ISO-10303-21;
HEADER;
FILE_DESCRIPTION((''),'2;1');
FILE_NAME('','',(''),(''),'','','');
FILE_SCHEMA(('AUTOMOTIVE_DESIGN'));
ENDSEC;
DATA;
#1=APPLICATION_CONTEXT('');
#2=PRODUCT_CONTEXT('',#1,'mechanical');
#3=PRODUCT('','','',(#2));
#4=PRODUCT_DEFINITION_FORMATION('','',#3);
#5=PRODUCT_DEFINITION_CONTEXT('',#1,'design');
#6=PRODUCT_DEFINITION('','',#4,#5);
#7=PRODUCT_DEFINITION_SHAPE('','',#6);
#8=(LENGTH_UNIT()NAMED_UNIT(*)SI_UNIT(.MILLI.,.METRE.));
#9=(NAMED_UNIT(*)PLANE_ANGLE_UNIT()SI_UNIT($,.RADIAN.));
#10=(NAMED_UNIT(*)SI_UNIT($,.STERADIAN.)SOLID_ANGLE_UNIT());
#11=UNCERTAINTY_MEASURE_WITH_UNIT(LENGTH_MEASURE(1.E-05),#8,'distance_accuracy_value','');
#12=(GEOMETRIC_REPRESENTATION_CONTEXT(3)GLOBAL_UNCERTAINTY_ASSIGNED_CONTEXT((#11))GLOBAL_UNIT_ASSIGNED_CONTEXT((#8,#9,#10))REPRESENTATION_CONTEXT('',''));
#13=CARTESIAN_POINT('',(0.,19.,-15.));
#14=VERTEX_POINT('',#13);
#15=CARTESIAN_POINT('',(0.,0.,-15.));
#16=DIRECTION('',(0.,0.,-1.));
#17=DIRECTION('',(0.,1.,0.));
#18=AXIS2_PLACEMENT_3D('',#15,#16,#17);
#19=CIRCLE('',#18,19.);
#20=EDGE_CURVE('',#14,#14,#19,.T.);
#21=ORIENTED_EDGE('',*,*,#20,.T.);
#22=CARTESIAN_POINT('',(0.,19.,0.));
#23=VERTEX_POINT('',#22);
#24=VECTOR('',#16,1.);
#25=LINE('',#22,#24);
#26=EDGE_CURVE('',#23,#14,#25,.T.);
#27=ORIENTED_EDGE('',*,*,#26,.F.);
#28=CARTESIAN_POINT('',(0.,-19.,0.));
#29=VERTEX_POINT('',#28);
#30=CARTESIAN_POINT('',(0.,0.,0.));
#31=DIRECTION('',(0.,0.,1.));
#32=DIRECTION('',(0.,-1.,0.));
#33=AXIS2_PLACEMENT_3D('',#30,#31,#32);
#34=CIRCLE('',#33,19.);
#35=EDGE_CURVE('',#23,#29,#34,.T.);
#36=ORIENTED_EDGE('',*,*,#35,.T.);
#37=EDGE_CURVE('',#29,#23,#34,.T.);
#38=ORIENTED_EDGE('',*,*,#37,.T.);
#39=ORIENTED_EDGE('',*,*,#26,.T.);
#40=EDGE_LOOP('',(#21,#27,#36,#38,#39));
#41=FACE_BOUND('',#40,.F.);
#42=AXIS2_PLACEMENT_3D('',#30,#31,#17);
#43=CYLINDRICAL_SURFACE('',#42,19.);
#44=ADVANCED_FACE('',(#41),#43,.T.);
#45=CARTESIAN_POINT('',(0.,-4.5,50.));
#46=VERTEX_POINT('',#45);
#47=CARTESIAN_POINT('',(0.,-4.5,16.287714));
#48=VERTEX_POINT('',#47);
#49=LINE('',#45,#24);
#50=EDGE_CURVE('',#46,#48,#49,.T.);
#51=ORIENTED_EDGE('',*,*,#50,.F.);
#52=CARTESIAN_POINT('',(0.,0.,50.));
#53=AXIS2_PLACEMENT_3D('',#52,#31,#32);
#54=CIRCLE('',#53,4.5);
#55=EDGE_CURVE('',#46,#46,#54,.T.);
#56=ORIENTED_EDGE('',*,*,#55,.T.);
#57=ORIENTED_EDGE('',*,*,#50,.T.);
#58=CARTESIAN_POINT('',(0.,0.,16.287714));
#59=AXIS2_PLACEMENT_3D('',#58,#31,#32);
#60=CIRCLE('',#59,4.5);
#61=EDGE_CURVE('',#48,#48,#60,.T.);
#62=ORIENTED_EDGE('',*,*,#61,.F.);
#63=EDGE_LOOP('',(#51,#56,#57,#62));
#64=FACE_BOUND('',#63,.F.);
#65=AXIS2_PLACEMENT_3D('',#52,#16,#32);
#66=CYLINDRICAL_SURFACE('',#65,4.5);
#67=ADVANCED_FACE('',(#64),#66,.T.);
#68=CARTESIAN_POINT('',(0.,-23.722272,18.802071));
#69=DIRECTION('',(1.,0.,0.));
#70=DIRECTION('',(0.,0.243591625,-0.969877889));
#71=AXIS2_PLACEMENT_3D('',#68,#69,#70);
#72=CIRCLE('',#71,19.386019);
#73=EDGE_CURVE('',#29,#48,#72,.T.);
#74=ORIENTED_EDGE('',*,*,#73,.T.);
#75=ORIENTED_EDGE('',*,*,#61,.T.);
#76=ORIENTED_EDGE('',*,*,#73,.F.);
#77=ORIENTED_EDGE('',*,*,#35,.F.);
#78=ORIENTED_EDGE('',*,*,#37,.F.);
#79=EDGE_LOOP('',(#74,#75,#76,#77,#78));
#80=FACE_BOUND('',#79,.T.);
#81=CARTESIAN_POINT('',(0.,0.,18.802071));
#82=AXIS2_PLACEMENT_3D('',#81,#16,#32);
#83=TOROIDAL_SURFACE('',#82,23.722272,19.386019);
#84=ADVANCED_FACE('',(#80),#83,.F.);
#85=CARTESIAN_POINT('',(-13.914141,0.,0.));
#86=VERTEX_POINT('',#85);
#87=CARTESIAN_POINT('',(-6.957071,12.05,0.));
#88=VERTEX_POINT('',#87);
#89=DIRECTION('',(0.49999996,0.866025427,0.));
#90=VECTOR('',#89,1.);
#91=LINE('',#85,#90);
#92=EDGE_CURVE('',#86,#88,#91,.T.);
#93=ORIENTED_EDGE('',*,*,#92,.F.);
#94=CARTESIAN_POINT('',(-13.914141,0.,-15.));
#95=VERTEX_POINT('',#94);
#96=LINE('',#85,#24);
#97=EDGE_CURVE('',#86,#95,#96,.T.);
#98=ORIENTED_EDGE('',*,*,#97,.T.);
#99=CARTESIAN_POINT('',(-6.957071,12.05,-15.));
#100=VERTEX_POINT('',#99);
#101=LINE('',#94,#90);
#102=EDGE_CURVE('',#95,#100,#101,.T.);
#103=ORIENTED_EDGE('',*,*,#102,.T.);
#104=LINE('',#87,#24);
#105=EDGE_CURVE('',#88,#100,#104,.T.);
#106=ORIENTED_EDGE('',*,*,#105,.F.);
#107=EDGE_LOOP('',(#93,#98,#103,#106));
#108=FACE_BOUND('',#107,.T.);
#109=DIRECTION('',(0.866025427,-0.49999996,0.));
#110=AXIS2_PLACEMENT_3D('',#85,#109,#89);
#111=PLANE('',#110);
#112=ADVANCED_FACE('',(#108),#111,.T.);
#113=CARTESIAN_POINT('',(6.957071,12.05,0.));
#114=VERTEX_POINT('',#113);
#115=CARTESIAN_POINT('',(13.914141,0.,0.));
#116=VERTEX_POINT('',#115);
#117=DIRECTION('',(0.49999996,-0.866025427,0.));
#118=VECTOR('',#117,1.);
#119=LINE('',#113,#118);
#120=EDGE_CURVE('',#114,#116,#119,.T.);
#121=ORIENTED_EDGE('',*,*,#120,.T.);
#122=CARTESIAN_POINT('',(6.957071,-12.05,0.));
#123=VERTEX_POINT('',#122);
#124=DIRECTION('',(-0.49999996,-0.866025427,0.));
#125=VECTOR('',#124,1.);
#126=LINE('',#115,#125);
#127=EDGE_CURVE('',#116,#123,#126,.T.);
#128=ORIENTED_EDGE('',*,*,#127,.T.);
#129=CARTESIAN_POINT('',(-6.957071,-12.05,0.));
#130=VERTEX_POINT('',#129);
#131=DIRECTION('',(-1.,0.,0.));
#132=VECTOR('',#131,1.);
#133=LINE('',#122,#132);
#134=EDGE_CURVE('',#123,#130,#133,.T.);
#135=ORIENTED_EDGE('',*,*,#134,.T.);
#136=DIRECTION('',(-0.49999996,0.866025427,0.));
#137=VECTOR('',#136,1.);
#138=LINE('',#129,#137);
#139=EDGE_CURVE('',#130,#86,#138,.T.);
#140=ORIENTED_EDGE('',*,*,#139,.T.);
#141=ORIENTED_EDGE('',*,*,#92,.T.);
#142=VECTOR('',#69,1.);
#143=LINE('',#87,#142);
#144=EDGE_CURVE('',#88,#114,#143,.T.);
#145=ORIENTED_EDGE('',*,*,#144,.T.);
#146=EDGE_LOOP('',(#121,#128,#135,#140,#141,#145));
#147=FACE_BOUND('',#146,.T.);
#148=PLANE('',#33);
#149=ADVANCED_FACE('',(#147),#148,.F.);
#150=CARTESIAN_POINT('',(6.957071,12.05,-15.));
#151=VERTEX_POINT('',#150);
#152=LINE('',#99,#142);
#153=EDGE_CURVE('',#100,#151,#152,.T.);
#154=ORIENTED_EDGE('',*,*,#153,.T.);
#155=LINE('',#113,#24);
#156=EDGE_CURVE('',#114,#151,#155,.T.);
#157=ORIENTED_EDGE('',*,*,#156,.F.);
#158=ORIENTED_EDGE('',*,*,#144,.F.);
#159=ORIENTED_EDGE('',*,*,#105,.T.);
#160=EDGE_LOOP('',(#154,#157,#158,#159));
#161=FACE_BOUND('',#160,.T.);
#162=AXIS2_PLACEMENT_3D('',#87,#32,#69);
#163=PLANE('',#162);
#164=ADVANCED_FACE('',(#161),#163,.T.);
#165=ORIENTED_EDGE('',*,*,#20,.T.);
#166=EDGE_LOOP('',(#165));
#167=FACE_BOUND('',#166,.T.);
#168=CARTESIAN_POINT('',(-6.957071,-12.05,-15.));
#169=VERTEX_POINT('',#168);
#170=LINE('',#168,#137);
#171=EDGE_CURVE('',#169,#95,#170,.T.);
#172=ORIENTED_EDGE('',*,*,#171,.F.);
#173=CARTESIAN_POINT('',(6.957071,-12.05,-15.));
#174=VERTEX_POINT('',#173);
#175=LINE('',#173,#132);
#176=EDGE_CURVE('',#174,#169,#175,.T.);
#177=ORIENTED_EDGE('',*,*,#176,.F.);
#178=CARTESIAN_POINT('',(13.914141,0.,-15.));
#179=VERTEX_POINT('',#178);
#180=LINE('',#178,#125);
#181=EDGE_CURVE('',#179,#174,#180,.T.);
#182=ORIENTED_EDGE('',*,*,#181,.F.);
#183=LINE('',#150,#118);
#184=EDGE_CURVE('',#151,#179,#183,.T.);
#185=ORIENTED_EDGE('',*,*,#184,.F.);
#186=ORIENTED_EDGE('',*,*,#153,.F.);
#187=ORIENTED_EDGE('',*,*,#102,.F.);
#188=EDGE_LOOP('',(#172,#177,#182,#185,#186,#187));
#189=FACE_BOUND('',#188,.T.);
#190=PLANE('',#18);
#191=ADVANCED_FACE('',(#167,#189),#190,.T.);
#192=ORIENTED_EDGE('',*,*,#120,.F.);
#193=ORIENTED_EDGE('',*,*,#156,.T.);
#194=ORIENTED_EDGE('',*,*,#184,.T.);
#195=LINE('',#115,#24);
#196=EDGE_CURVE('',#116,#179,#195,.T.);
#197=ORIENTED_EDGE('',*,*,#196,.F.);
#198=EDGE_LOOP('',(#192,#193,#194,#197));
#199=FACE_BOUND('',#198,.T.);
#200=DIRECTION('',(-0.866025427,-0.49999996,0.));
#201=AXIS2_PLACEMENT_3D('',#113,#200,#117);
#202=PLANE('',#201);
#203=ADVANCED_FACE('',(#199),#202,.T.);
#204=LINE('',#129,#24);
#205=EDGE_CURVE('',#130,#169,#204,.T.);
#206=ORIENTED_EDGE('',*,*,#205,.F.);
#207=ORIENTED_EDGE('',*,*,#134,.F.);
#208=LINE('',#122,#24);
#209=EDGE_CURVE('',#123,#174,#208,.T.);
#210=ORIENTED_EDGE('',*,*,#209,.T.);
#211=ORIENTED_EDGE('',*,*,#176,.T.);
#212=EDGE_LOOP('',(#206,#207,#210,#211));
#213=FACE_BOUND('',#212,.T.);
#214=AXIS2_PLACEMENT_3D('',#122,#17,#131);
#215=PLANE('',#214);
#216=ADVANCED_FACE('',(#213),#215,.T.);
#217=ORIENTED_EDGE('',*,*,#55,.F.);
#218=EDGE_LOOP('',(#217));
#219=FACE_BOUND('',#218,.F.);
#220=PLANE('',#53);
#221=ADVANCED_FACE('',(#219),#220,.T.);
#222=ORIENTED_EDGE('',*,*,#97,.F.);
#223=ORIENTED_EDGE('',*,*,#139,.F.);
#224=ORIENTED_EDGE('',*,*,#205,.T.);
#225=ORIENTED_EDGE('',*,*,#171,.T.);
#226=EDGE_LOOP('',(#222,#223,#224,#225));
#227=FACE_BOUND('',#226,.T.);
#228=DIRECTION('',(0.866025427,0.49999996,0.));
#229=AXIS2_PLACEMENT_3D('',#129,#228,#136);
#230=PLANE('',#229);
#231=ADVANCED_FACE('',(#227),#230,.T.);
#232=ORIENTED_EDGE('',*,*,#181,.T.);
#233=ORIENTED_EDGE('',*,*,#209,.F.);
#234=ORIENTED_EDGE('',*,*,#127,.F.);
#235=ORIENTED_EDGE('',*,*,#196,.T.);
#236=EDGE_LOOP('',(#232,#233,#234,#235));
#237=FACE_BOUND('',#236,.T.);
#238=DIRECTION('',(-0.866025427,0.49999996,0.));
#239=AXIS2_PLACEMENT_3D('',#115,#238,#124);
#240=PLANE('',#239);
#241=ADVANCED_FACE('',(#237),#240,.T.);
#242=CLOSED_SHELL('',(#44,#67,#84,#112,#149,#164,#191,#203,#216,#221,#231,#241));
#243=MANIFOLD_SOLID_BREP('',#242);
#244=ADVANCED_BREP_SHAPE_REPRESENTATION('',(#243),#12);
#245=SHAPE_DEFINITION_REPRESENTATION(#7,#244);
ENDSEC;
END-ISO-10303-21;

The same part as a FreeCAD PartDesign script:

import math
import FreeCAD as App
import Part
import Sketcher
Q = App.Units.Quantity


def add_polygon(sketch, points):
    """Adds a closed chain of lines whose ends are joined by coincident constraints."""
    first, n = sketch.GeometryCount, len(points)
    for a, b in zip(points, points[1:] + points[:1]):
        sketch.addGeometry(Part.LineSegment(App.Vector(*a, 0), App.Vector(*b, 0)), False)
    for i in range(n):
        sketch.addConstraint(Sketcher.Constraint("Coincident", first + i, 2, first + (i + 1) % n, 1))

doc = App.newDocument("Part")
params = doc.addObject("Spreadsheet::Sheet", "Params")
for row, (alias, value) in enumerate([
    ("sketch1_width", "19 mm"),
    ("sketch1_height", "50 mm"),
    ("sketch1_width2", "4.5 mm"),
    ("revolution_angle", "360 deg"),
    ("sketch2_diameter", "38 mm"),
    ("pad1_length", "15 mm"),
], start=1):
    params.set(f"A{row}", alias)
    params.set(f"B{row}", "=" + value)
    params.setAlias(f"B{row}", alias)

body = doc.addObject("PartDesign::Body", "Body")

sketch1 = body.newObject("Sketcher::SketchObject", "Sketch")
sketch1.AttachmentSupport = (doc.getObject("YZ_Plane"), [""])
sketch1.MapMode = "FlatFace"
sketch1.addGeometry([
    Part.LineSegment(App.Vector(0, 0, 0), App.Vector(0, 50, 0)),
    Part.LineSegment(App.Vector(0, 50, 0), App.Vector(-4.5, 50, 0)),
    Part.LineSegment(App.Vector(-4.5, 50, 0), App.Vector(-4.5, 16.3, 0)),
    Part.ArcOfCircle(Part.Circle(App.Vector(-23.7, 18.8, 0), App.Vector(0, 0, 1), 19.4), math.radians(-76), math.radians(-7)),
    Part.LineSegment(App.Vector(-19, 0, 0), App.Vector(0, 0, 0)),
], False)
sketch1.addConstraint([
    Sketcher.Constraint("Coincident", 0, 2, 1, 1),
    Sketcher.Constraint("Coincident", 1, 2, 2, 1),
    Sketcher.Constraint("Coincident", 2, 2, 3, 2),
    Sketcher.Constraint("Coincident", 3, 1, 4, 1),
    Sketcher.Constraint("Coincident", 4, 2, 0, 1),
    Sketcher.Constraint("Vertical", 0),
    Sketcher.Constraint("Horizontal", 1),
    Sketcher.Constraint("Vertical", 2),
    Sketcher.Constraint("Horizontal", 4),
    Sketcher.Constraint("Coincident", 4, 2, -1, 1),
    Sketcher.Constraint("DistanceX", 4, 1, 4, 2, 19.0),
    Sketcher.Constraint("DistanceY", 0, 1, 0, 2, 50.0),
    Sketcher.Constraint("DistanceX", 1, 2, 1, 1, 4.5),
    Sketcher.Constraint("Radius", 3, 19.386019),
    Sketcher.Constraint("DistanceY", 2, 2, 2, 1, 33.712286),
])
sketch1.setExpression("Constraints[10]", "Params.sketch1_width")
sketch1.setExpression("Constraints[11]", "Params.sketch1_height")
sketch1.setExpression("Constraints[12]", "Params.sketch1_width2")
revolution = body.newObject("PartDesign::Revolution", "Revolution")
revolution.Profile = sketch1
revolution.ReferenceAxis = (sketch1, ["V_Axis"])
revolution.setExpression("Angle", "Params.revolution_angle")

sketch2 = body.newObject("Sketcher::SketchObject", "Sketch001")
sketch2.AttachmentSupport = (doc.getObject("XY_Plane"), [""])
sketch2.MapMode = "FlatFace"
sketch2.addGeometry(Part.Circle(App.Vector(0, 0, 0), App.Vector(0, 0, 1), 19), False)
add_polygon(sketch2, [(7, -12), (14, 0), (7, 12), (-7, 12), (-14, 0), (-7, -12)])
sketch2.addConstraint([
    Sketcher.Constraint("Horizontal", 3),
    Sketcher.Constraint("Horizontal", 6),
    Sketcher.Constraint("Coincident", 0, 3, -1, 1),
    Sketcher.Constraint("Symmetric", 1, 2, 4, 2, -1, 1),
    Sketcher.Constraint("Symmetric", 2, 2, 5, 2, -1, 1),
    Sketcher.Constraint("PointOnObject", 1, 2, -1),
    Sketcher.Constraint("Parallel", 1, 4),
    Sketcher.Constraint("Vertical", 3, 2, 5, 2),
    Sketcher.Constraint("Diameter", 0, 38.0),
    Sketcher.Constraint("Angle", 1, Q("60.000003 deg")),
    Sketcher.Constraint("DistanceY", 5, 2, 3, 2, 24.1),
    Sketcher.Constraint("DistanceX", 3, 2, 3, 1, 13.914142),
])
sketch2.setExpression("Constraints[14]", "Params.sketch2_diameter")
pad1 = body.newObject("PartDesign::Pad", "Pad")
pad1.Profile = sketch2
pad1.setExpression("Length", "Params.pad1_length")
pad1.Reversed = True

doc.recompute()
